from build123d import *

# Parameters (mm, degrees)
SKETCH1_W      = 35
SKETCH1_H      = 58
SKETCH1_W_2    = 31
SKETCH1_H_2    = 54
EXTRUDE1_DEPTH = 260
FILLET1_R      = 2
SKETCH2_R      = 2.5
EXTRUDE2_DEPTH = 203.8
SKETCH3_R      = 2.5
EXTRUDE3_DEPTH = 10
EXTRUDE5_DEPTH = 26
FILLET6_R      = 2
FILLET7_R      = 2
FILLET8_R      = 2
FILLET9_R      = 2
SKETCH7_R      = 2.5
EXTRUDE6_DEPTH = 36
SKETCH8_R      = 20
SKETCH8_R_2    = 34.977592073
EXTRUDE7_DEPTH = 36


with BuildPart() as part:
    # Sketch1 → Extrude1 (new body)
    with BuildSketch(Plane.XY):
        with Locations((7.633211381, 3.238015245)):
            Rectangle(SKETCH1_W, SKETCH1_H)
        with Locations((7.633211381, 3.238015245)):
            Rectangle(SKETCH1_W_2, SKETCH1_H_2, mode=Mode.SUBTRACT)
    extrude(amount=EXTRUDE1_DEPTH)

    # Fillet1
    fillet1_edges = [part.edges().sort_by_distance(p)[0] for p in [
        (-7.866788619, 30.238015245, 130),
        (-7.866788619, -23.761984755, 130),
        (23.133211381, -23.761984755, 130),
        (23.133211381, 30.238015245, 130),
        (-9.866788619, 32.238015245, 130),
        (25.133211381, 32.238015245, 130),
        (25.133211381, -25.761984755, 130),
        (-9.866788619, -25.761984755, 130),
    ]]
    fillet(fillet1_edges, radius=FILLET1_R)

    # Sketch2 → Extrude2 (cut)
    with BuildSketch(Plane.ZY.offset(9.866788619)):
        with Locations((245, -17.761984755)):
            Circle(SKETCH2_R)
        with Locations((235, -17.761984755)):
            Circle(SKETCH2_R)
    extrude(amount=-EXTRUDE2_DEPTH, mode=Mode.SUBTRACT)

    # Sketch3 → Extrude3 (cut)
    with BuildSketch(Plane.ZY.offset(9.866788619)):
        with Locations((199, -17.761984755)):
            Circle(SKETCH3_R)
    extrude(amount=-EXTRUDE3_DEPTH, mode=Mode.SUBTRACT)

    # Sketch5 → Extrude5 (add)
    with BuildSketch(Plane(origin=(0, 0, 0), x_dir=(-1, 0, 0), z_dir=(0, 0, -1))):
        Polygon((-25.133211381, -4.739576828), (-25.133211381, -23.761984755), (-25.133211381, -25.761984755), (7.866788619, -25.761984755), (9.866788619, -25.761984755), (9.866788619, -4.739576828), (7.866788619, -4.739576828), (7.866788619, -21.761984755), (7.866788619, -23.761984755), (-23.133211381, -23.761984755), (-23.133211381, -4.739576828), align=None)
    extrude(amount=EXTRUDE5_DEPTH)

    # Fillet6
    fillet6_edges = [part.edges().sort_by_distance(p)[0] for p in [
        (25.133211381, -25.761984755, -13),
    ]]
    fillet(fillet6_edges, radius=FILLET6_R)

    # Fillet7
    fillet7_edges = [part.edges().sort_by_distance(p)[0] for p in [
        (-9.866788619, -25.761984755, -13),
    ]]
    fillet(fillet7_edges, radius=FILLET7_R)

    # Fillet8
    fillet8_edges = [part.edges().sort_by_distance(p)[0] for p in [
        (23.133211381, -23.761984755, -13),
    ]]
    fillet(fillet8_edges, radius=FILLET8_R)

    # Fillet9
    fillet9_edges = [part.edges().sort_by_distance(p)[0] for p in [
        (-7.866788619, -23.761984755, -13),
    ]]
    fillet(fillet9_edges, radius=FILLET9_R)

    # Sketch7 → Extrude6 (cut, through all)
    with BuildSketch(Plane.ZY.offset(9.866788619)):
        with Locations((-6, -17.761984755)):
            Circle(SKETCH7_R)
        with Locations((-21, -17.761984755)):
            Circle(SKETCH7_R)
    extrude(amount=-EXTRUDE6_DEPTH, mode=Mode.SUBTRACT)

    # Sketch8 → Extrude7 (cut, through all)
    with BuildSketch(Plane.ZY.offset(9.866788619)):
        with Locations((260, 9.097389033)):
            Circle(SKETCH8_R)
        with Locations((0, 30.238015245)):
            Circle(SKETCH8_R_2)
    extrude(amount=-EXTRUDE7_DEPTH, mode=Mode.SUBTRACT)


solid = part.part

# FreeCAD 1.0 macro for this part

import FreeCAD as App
import Part
import Sketcher
from FreeCAD import Vector
Q = App.Units.Quantity


def edges_at(feature, points):
    """Names of the edges that pass closest to the given points."""
    edges = feature.Shape.Edges
    near = lambda p: min(range(len(edges)), key=lambda i: edges[i].distToShape(Part.Vertex(*p))[0])
    return sorted({f"Edge{near(p) + 1}" for p in points})


def add_polygon(sketch, points):
    """Adds a closed chain of lines whose ends are joined by coincident constraints."""
    first, n = sketch.GeometryCount, len(points)
    for a, b in zip(points, points[1:] + points[:1]):
        sketch.addGeometry(Part.LineSegment(App.Vector(*a, 0), App.Vector(*b, 0)), False)
    for i in range(n):
        sketch.addConstraint(Sketcher.Constraint("Coincident", first + i, 2, first + (i + 1) % n, 1))

doc = App.newDocument("Part")
body = doc.addObject("PartDesign::Body", "Body")

sketch1 = body.newObject("Sketcher::SketchObject", "Sketch")
sketch1.AttachmentSupport = (doc.getObject("XY_Plane"), [""])
sketch1.MapMode = "FlatFace"
add_polygon(sketch1, [(-10, 32), (-10, -26), (25, -26), (25, 32)])
add_polygon(sketch1, [(23, -24), (-8, -24), (-8, 30), (23, 30)])
sketch1.addConstraint(Sketcher.Constraint("Vertical", 0))
sketch1.addConstraint(Sketcher.Constraint("Horizontal", 1))
sketch1.addConstraint(Sketcher.Constraint("Vertical", 2))
sketch1.addConstraint(Sketcher.Constraint("Horizontal", 3))
sketch1.addConstraint(Sketcher.Constraint("Horizontal", 4))
sketch1.addConstraint(Sketcher.Constraint("Vertical", 5))
sketch1.addConstraint(Sketcher.Constraint("Horizontal", 6))
sketch1.addConstraint(Sketcher.Constraint("Vertical", 7))
sketch1.addConstraint(Sketcher.Constraint("DistanceX", 1, 1, 1, 2, Q("35 mm")))
sketch1.addConstraint(Sketcher.Constraint("DistanceX", 4, 2, 4, 1, Q("31 mm")))
sketch1.addConstraint(Sketcher.Constraint("DistanceY", 0, 2, 0, 1, Q("58 mm")))
sketch1.addConstraint(Sketcher.Constraint("DistanceY", 5, 1, 5, 2, Q("54 mm")))
sketch1.addConstraint(Sketcher.Constraint("DistanceX", 0, 2, 4, 2, Q("2 mm")))
sketch1.addConstraint(Sketcher.Constraint("DistanceY", 0, 2, 4, 2, Q("2 mm")))
sketch1.addConstraint(Sketcher.Constraint("DistanceX", 0, 2, -1, 1, Q("9.866789 mm")))
sketch1.addConstraint(Sketcher.Constraint("DistanceY", 0, 2, -1, 1, Q("25.761985 mm")))
pad1 = body.newObject("PartDesign::Pad", "Pad")
pad1.Profile = sketch1
pad1.Length = 260
doc.recompute()

fillet = body.newObject("PartDesign::Fillet", "Fillet")
fillet.Base = (pad1, edges_at(pad1, [
    (-7.867, 30.238, 130),
    (-7.867, -23.762, 130),
    (23.133, -23.762, 130),
    (23.133, 30.238, 130),
    (-9.867, 32.238, 130),
    (25.133, 32.238, 130),
    (25.133, -25.762, 130),
    (-9.867, -25.762, 130),
]))
fillet.Radius = 2

sketch2 = body.newObject("Sketcher::SketchObject", "Sketch001")
sketch2.AttachmentSupport = (doc.getObject("YZ_Plane"), [""])
sketch2.MapMode = "FlatFace"
sketch2.AttachmentOffset = App.Placement(Vector(0, 0, -9.866789), App.Rotation())
sketch2.addGeometry(Part.Circle(Vector(-17.8, 245, 0), Vector(0, 0, 1), 2.5), False)
sketch2.addGeometry(Part.Circle(Vector(-17.8, 235, 0), Vector(0, 0, 1), 2.5), False)
sketch2.addConstraint(Sketcher.Constraint("Equal", 0, 1))
sketch2.addConstraint(Sketcher.Constraint("Vertical", 0, 3, 1, 3))
sketch2.addConstraint(Sketcher.Constraint("Diameter", 0, Q("5 mm")))
sketch2.addConstraint(Sketcher.Constraint("DistanceY", -1, 1, 0, 3, Q("245 mm")))
sketch2.addConstraint(Sketcher.Constraint("DistanceY", -1, 1, 1, 3, Q("235 mm")))
sketch2.addConstraint(Sketcher.Constraint("DistanceX", 0, 3, -1, 1, Q("17.761985 mm")))
pocket1 = body.newObject("PartDesign::Pocket", "Pocket")
pocket1.Profile = sketch2
pocket1.Length = 203.8
pocket1.Reversed = True

sketch3 = body.newObject("Sketcher::SketchObject", "Sketch002")
sketch3.AttachmentSupport = (doc.getObject("YZ_Plane"), [""])
sketch3.MapMode = "FlatFace"
sketch3.AttachmentOffset = App.Placement(Vector(0, 0, -9.866789), App.Rotation())
sketch3.addGeometry(Part.Circle(Vector(-17.8, 199, 0), Vector(0, 0, 1), 2.5), False)
sketch3.addConstraint(Sketcher.Constraint("Diameter", 0, Q("5 mm")))
sketch3.addConstraint(Sketcher.Constraint("DistanceY", -1, 1, 0, 3, Q("199 mm")))
sketch3.addConstraint(Sketcher.Constraint("DistanceX", 0, 3, -1, 1, Q("17.761985 mm")))
pocket2 = body.newObject("PartDesign::Pocket", "Pocket001")
pocket2.Profile = sketch3
pocket2.Length = 10
pocket2.Reversed = True

sketch4 = body.newObject("Sketcher::SketchObject", "Sketch003")
sketch4.AttachmentSupport = (doc.getObject("XY_Plane"), [""])
sketch4.MapMode = "FlatFace"
add_polygon(sketch4, [(25.1, -4.7), (25.1, -25.8), (-9.9, -25.8), (-9.9, -4.7), (-7.9, -4.7), (-7.9, -23.8), (23.1, -23.8), (23.1, -4.7)])
sketch4.addConstraint(Sketcher.Constraint("Vertical", 0))
sketch4.addConstraint(Sketcher.Constraint("Horizontal", 1))
sketch4.addConstraint(Sketcher.Constraint("Vertical", 2))
sketch4.addConstraint(Sketcher.Constraint("Horizontal", 3))
sketch4.addConstraint(Sketcher.Constraint("Vertical", 4))
sketch4.addConstraint(Sketcher.Constraint("Horizontal", 5))
sketch4.addConstraint(Sketcher.Constraint("Vertical", 6))
sketch4.addConstraint(Sketcher.Constraint("Horizontal", 7))
sketch4.addConstraint(Sketcher.Constraint("Horizontal", 3, 2, 6, 2))
sketch4.addConstraint(Sketcher.Constraint("Equal", 3, 7))
sketch4.addConstraint(Sketcher.Constraint("DistanceX", 1, 2, 1, 1, Q("35 mm")))
sketch4.addConstraint(Sketcher.Constraint("DistanceX", 3, 1, 3, 2, Q("2 mm")))
sketch4.addConstraint(Sketcher.Constraint("DistanceY", 1, 2, 4, 2, Q("2 mm")))
sketch4.addConstraint(Sketcher.Constraint("DistanceY", 0, 2, 0, 1, Q("21.022408 mm")))
sketch4.addConstraint(Sketcher.Constraint("DistanceX", -1, 1, 0, 2, Q("25.133211 mm")))
sketch4.addConstraint(Sketcher.Constraint("DistanceY", 0, 2, -1, 1, Q("25.761985 mm")))
pad2 = body.newObject("PartDesign::Pad", "Pad001")
pad2.Profile = sketch4
pad2.Length = 26
pad2.Reversed = True
doc.recompute()

fillet2 = body.newObject("PartDesign::Fillet", "Fillet001")
fillet2.Base = (pad2, edges_at(pad2, [(25.133, -25.762, -13)]))
fillet2.Radius = 2
doc.recompute()

fillet3 = body.newObject("PartDesign::Fillet", "Fillet002")
fillet3.Base = (fillet2, edges_at(fillet2, [(-9.867, -25.762, -13)]))
fillet3.Radius = 2
doc.recompute()

fillet4 = body.newObject("PartDesign::Fillet", "Fillet003")
fillet4.Base = (fillet3, edges_at(fillet3, [(23.133, -23.762, -13)]))
fillet4.Radius = 2
doc.recompute()

fillet5 = body.newObject("PartDesign::Fillet", "Fillet004")
fillet5.Base = (fillet4, edges_at(fillet4, [(-7.867, -23.762, -13)]))
fillet5.Radius = 2

sketch5 = body.newObject("Sketcher::SketchObject", "Sketch004")
sketch5.AttachmentSupport = (doc.getObject("YZ_Plane"), [""])
sketch5.MapMode = "FlatFace"
sketch5.AttachmentOffset = App.Placement(Vector(0, 0, -9.866789), App.Rotation())
sketch5.addGeometry(Part.Circle(Vector(-17.8, -6, 0), Vector(0, 0, 1), 2.5), False)
sketch5.addGeometry(Part.Circle(Vector(-17.8, -21, 0), Vector(0, 0, 1), 2.5), False)
sketch5.addConstraint(Sketcher.Constraint("Equal", 0, 1))
sketch5.addConstraint(Sketcher.Constraint("Vertical", 0, 3, 1, 3))
sketch5.addConstraint(Sketcher.Constraint("Diameter", 0, Q("5 mm")))
sketch5.addConstraint(Sketcher.Constraint("DistanceY", 0, 3, -1, 1, Q("6 mm")))
sketch5.addConstraint(Sketcher.Constraint("DistanceY", 1, 3, -1, 1, Q("21 mm")))
sketch5.addConstraint(Sketcher.Constraint("DistanceX", 0, 3, -1, 1, Q("17.761985 mm")))
pocket3 = body.newObject("PartDesign::Pocket", "Pocket002")
pocket3.Profile = sketch5
pocket3.Type = "ThroughAll"
pocket3.Reversed = True

sketch6 = body.newObject("Sketcher::SketchObject", "Sketch005")
sketch6.AttachmentSupport = (doc.getObject("YZ_Plane"), [""])
sketch6.MapMode = "FlatFace"
sketch6.AttachmentOffset = App.Placement(Vector(0, 0, -9.866789), App.Rotation())
sketch6.addGeometry(Part.Circle(Vector(9, 260, 0), Vector(0, 0, 1), 20), False)
sketch6.addGeometry(Part.Circle(Vector(30, 0, 0), Vector(0, 0, 1), 35), False)
sketch6.addConstraint(Sketcher.Constraint("PointOnObject", 1, 3, -1))
sketch6.addConstraint(Sketcher.Constraint("Diameter", 0, Q("40 mm")))
sketch6.addConstraint(Sketcher.Constraint("DistanceY", -1, 1, 0, 3, Q("260 mm")))
sketch6.addConstraint(Sketcher.Constraint("Diameter", 1, Q("69.955184 mm")))
sketch6.addConstraint(Sketcher.Constraint("DistanceX", -1, 1, 0, 3, Q("9.097389 mm")))
sketch6.addConstraint(Sketcher.Constraint("DistanceX", -1, 1, 1, 3, Q("30.238015 mm")))
pocket4 = body.newObject("PartDesign::Pocket", "Pocket003")
pocket4.Profile = sketch6
pocket4.Type = "ThroughAll"
pocket4.Reversed = True

doc.recompute()
